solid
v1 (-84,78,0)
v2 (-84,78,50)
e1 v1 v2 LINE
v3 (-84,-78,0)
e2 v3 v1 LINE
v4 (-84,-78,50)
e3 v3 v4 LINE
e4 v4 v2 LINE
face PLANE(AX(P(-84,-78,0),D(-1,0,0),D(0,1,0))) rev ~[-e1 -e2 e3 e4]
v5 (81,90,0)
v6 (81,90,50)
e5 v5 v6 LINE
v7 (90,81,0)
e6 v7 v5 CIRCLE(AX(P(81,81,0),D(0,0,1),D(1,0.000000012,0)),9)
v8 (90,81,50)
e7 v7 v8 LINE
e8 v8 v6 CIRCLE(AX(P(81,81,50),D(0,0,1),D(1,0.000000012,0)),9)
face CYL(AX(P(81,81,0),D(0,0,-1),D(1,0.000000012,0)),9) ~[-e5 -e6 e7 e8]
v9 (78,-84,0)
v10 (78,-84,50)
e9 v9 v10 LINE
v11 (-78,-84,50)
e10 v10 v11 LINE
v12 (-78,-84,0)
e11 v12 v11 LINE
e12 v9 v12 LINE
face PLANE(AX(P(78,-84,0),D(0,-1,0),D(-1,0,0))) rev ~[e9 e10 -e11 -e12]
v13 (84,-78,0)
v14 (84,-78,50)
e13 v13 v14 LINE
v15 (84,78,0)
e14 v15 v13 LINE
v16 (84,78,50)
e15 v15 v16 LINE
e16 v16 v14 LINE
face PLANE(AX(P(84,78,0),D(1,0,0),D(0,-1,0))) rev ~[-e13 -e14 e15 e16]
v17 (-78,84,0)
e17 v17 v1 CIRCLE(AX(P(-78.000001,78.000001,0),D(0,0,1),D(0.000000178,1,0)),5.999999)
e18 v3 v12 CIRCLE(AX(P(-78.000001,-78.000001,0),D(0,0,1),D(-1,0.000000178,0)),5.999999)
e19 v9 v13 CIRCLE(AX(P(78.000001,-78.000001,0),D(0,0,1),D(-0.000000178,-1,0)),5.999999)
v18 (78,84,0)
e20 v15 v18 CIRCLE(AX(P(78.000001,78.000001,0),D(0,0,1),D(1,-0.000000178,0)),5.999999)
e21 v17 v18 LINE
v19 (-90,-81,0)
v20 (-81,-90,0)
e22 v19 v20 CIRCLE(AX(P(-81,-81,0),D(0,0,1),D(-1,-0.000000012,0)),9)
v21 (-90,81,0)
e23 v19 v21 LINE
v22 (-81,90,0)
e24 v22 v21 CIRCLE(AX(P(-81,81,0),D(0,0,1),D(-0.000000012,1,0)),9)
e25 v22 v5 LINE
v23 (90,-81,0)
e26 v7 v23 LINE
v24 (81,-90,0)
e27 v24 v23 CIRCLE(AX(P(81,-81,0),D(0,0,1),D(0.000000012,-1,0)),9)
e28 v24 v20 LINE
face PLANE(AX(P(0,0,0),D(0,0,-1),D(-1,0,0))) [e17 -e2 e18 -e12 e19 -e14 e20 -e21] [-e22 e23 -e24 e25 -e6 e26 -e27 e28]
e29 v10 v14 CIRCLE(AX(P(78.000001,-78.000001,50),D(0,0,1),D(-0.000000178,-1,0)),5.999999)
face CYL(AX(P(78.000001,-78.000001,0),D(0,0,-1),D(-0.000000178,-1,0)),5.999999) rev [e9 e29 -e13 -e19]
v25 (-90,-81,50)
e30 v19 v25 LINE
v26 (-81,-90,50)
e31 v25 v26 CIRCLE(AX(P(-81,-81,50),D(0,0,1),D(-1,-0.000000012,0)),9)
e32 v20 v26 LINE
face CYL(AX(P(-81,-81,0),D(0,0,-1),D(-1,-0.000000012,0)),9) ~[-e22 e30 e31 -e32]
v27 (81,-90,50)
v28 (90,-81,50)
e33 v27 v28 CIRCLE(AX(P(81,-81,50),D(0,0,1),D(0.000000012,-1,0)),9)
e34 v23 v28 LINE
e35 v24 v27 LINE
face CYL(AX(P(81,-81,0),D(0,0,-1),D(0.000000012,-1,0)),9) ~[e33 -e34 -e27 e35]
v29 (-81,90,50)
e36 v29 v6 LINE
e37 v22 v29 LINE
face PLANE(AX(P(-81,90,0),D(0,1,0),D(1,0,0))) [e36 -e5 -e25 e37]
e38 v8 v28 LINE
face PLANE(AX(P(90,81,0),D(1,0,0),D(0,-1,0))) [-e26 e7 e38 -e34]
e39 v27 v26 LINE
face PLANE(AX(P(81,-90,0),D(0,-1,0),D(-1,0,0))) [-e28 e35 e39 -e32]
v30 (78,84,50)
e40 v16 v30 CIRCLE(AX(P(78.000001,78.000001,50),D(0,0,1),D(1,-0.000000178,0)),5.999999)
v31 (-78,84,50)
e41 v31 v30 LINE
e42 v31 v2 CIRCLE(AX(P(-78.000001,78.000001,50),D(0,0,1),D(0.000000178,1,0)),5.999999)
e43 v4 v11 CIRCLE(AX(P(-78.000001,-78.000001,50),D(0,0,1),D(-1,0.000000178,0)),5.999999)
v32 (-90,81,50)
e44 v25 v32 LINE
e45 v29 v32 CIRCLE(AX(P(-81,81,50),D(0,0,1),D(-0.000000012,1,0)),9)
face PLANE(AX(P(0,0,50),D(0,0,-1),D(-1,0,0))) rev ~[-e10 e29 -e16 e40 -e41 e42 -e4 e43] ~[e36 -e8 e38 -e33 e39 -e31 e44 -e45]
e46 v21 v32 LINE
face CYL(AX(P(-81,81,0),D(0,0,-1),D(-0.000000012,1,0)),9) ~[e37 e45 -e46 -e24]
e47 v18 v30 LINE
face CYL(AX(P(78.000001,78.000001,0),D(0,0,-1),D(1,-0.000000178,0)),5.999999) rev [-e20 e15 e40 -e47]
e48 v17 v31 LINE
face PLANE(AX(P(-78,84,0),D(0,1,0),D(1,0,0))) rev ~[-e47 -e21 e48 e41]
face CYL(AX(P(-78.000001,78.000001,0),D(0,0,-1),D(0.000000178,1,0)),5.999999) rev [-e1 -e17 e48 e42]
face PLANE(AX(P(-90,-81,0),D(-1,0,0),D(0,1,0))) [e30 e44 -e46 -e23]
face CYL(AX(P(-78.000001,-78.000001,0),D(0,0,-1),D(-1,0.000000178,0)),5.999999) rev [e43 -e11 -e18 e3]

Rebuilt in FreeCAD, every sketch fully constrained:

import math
import FreeCAD as App
import Part
import Sketcher
from FreeCAD import Vector

doc = App.newDocument("Part")
body = doc.addObject("PartDesign::Body", "Body")

# Sketch on XY plane
sketch1 = body.newObject("Sketcher::SketchObject", "Sketch")
sketch1.AttachmentSupport = (doc.getObject("XY_Plane"), [""])
sketch1.MapMode = "FlatFace"
sketch1.addGeometry([
    Part.LineSegment(Vector(81, 90, 0), Vector(-81, 90, 0)),  # 0
    Part.ArcOfCircle(Part.Circle(Vector(-81, 81, 0), Vector(0, 0, 1), 9), math.radians(90), math.radians(180)),  # 1
    Part.LineSegment(Vector(-90, 81, 0), Vector(-90, -81, 0)),  # 2
    Part.ArcOfCircle(Part.Circle(Vector(-81, -81, 0), Vector(0, 0, 1), 9), math.radians(-180), math.radians(-90)),  # 3
    Part.LineSegment(Vector(-81, -90, 0), Vector(81, -90, 0)),  # 4
    Part.ArcOfCircle(Part.Circle(Vector(81, -81, 0), Vector(0, 0, 1), 9), math.radians(-90), math.radians(0)),  # 5
    Part.LineSegment(Vector(90, -81, 0), Vector(90, 81, 0)),  # 6
    Part.ArcOfCircle(Part.Circle(Vector(81, 81, 0), Vector(0, 0, 1), 9), math.radians(0), math.radians(90)),  # 7
    Part.LineSegment(Vector(-78, 84, 0), Vector(78, 84, 0)),  # 8
    Part.ArcOfCircle(Part.Circle(Vector(78, 78, 0), Vector(0, 0, 1), 6), math.radians(0), math.radians(90)),  # 9
    Part.LineSegment(Vector(84, 78, 0), Vector(84, -78, 0)),  # 10
    Part.ArcOfCircle(Part.Circle(Vector(78, -78, 0), Vector(0, 0, 1), 6), math.radians(-90), math.radians(0)),  # 11
    Part.LineSegment(Vector(78, -84, 0), Vector(-78, -84, 0)),  # 12
    Part.ArcOfCircle(Part.Circle(Vector(-78, -78, 0), Vector(0, 0, 1), 6), math.radians(180), math.radians(270)),  # 13
    Part.LineSegment(Vector(-84, -78, 0), Vector(-84, 78, 0)),  # 14
    Part.ArcOfCircle(Part.Circle(Vector(-78, 78, 0), Vector(0, 0, 1), 6), math.radians(90), math.radians(180)),  # 15
], False)
sketch1.addConstraint([
    Sketcher.Constraint("Tangent", 0, 2, 1, 1),
    Sketcher.Constraint("Tangent", 1, 2, 2, 1),
    Sketcher.Constraint("Tangent", 2, 2, 3, 1),
    Sketcher.Constraint("Tangent", 3, 2, 4, 1),
    Sketcher.Constraint("Tangent", 4, 2, 5, 1),
    Sketcher.Constraint("Tangent", 5, 2, 6, 1),
    Sketcher.Constraint("Tangent", 6, 2, 7, 1),
    Sketcher.Constraint("Tangent", 7, 2, 0, 1),
    Sketcher.Constraint("Tangent", 8, 2, 9, 2),
    Sketcher.Constraint("Tangent", 9, 1, 10, 1),
    Sketcher.Constraint("Tangent", 10, 2, 11, 2),
    Sketcher.Constraint("Tangent", 11, 1, 12, 1),
    Sketcher.Constraint("Tangent", 12, 2, 13, 2),
    Sketcher.Constraint("Tangent", 13, 1, 14, 1),
    Sketcher.Constraint("Tangent", 14, 2, 15, 2),
    Sketcher.Constraint("Tangent", 15, 1, 8, 1),
    Sketcher.Constraint("Horizontal", 0),
    Sketcher.Constraint("Vertical", 2),
    Sketcher.Constraint("Horizontal", 4),
    Sketcher.Constraint("Vertical", 6),
    Sketcher.Constraint("Horizontal", 8),
    Sketcher.Constraint("Vertical", 10),
    Sketcher.Constraint("Horizontal", 12),
    Sketcher.Constraint("Vertical", 14),
    Sketcher.Constraint("Equal", 1, 3),
    Sketcher.Constraint("Equal", 3, 5),
    Sketcher.Constraint("Equal", 5, 7),
    Sketcher.Constraint("Equal", 9, 11),
    Sketcher.Constraint("Equal", 11, 13),
    Sketcher.Constraint("Equal", 13, 15),
    Sketcher.Constraint("Symmetric", 1, 3, 5, 3, -1, 1),
    Sketcher.Constraint("Symmetric", 9, 3, 13, 3, -1, 1),
    Sketcher.Constraint("Equal", 4, 2),
    Sketcher.Constraint("Equal", 12, 10),
    Sketcher.Constraint("Radius", 1, 9.0),
    Sketcher.Constraint("Radius", 9, 5.999999),
    Sketcher.Constraint("DistanceX", 0, 2, 0, 1, 162.0),
    Sketcher.Constraint("DistanceX", 8, 1, 8, 2, 156.0),
])
pad1 = body.newObject("PartDesign::Pad", "Pad")
pad1.Profile = sketch1
pad1.Length = 50

doc.recompute()
